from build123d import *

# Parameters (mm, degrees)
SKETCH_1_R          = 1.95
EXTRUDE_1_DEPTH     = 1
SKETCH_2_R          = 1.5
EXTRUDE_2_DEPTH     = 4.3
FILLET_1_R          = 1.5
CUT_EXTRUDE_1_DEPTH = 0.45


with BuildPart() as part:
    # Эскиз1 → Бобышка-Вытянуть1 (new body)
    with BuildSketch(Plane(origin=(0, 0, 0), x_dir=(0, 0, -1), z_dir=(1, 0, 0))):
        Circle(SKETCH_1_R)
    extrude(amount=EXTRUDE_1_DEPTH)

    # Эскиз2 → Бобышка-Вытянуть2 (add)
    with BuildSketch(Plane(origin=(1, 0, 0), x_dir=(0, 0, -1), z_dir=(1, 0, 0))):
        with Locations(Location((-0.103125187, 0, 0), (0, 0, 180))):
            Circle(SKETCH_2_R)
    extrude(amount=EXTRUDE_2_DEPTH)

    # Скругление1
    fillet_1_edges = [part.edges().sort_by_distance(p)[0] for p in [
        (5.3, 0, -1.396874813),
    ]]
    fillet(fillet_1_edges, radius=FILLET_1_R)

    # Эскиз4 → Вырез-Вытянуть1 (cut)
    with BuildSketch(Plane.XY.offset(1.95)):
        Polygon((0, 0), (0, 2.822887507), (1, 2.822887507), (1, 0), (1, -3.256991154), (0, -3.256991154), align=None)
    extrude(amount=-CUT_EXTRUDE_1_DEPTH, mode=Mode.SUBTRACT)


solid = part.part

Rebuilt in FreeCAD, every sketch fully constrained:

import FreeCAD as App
import Part
import Sketcher

V = App.Vector


def edges_at(feature, points):
    """Names of the edges that pass closest to the given points."""
    edges = feature.Shape.Edges
    near = lambda p: min(range(len(edges)), key=lambda i: edges[i].distToShape(Part.Vertex(*p))[0])
    return sorted({f"Edge{near(p) + 1}" for p in points})

doc = App.newDocument("Part")
params = doc.addObject("Spreadsheet::Sheet", "Params")
for row, (alias, value) in enumerate([
    ("sketch1_diameter", "3.9 mm"),
    ("pad1_length", "1 mm"),
    ("sketch2_diameter", "3 mm"),
    ("pad2_length", "4.3 mm"),
    ("fillet_radius", "1.5 mm"),
    ("sketch3_width", "1 mm"),
    ("pocket1_length", "0.45 mm"),
], start=1):
    params.set(f"A{row}", alias)
    params.set(f"B{row}", "=" + value)
    params.setAlias(f"B{row}", alias)

body = doc.addObject("PartDesign::Body", "Body")

sketch1 = body.newObject("Sketcher::SketchObject", "Sketch")
sketch1.AttachmentSupport = (doc.getObject("YZ_Plane"), [""])
sketch1.MapMode = "FlatFace"
sketch1.addGeometry(Part.Circle(V(0, 0, 0), V(0, 0, 1), 1.95), False)
sketch1.addConstraint([
    Sketcher.Constraint("Coincident", 0, 3, -1, 1),
    Sketcher.Constraint("Diameter", 0, 3.9),
])
sketch1.setExpression("Constraints[1]", "Params.sketch1_diameter")
pad1 = body.newObject("PartDesign::Pad", "Pad")
pad1.Profile = sketch1
pad1.setExpression("Length", "Params.pad1_length")

sketch2 = body.newObject("Sketcher::SketchObject", "Sketch001")
sketch2.AttachmentSupport = (doc.getObject("YZ_Plane"), [""])
sketch2.MapMode = "FlatFace"
sketch2.AttachmentOffset = App.Placement(V(0, 0, 1), App.Rotation())
sketch2.addGeometry(Part.Circle(V(0, 0.103125, 0), V(0, 0, 1), 1.5), False)
sketch2.addConstraint([
    Sketcher.Constraint("PointOnObject", 0, 3, -2),
    Sketcher.Constraint("Diameter", 0, 3.0),
    Sketcher.Constraint("DistanceY", -1, 1, 0, 3, 0.103125),
])
sketch2.setExpression("Constraints[1]", "Params.sketch2_diameter")
pad2 = body.newObject("PartDesign::Pad", "Pad001")
pad2.Profile = sketch2
pad2.setExpression("Length", "Params.pad2_length")
doc.recompute()

fillet = body.newObject("PartDesign::Fillet", "Fillet")
fillet.Base = (pad2, edges_at(pad2, [(5.3, 0, -1.397)]))
fillet.setExpression("Radius", "Params.fillet_radius")

sketch3 = body.newObject("Sketcher::SketchObject", "Sketch002")
sketch3.AttachmentSupport = (doc.getObject("XY_Plane"), [""])
sketch3.MapMode = "FlatFace"
sketch3.AttachmentOffset = App.Placement(V(0, 0, 1.95), App.Rotation())
sketch3.addGeometry([
    Part.LineSegment(V(0, 2.822888, 0), V(0, -3.256991, 0)),
    Part.LineSegment(V(0, -3.256991, 0), V(1, -3.256991, 0)),
    Part.LineSegment(V(1, -3.256991, 0), V(1, 2.822888, 0)),
    Part.LineSegment(V(1, 2.822888, 0), V(0, 2.822888, 0)),
], False)
sketch3.addConstraint([
    Sketcher.Constraint("Coincident", 0, 2, 1, 1),
    Sketcher.Constraint("Coincident", 1, 2, 2, 1),
    Sketcher.Constraint("Coincident", 2, 2, 3, 1),
    Sketcher.Constraint("Coincident", 3, 2, 0, 1),
    Sketcher.Constraint("Vertical", 0),
    Sketcher.Constraint("Horizontal", 1),
    Sketcher.Constraint("Vertical", 2),
    Sketcher.Constraint("Horizontal", 3),
    Sketcher.Constraint("PointOnObject", 0, 2, -2),
    Sketcher.Constraint("DistanceX", 1, 1, 1, 2, 1.0),
    Sketcher.Constraint("DistanceY", 0, 2, 0, 1, 6.079879),
    Sketcher.Constraint("DistanceY", 0, 2, -1, 1, 3.256991),
])
sketch3.setExpression("Constraints[9]", "Params.sketch3_width")
pocket1 = body.newObject("PartDesign::Pocket", "Pocket")
pocket1.Profile = sketch3
pocket1.setExpression("Length", "Params.pocket1_length")

doc.recompute()
